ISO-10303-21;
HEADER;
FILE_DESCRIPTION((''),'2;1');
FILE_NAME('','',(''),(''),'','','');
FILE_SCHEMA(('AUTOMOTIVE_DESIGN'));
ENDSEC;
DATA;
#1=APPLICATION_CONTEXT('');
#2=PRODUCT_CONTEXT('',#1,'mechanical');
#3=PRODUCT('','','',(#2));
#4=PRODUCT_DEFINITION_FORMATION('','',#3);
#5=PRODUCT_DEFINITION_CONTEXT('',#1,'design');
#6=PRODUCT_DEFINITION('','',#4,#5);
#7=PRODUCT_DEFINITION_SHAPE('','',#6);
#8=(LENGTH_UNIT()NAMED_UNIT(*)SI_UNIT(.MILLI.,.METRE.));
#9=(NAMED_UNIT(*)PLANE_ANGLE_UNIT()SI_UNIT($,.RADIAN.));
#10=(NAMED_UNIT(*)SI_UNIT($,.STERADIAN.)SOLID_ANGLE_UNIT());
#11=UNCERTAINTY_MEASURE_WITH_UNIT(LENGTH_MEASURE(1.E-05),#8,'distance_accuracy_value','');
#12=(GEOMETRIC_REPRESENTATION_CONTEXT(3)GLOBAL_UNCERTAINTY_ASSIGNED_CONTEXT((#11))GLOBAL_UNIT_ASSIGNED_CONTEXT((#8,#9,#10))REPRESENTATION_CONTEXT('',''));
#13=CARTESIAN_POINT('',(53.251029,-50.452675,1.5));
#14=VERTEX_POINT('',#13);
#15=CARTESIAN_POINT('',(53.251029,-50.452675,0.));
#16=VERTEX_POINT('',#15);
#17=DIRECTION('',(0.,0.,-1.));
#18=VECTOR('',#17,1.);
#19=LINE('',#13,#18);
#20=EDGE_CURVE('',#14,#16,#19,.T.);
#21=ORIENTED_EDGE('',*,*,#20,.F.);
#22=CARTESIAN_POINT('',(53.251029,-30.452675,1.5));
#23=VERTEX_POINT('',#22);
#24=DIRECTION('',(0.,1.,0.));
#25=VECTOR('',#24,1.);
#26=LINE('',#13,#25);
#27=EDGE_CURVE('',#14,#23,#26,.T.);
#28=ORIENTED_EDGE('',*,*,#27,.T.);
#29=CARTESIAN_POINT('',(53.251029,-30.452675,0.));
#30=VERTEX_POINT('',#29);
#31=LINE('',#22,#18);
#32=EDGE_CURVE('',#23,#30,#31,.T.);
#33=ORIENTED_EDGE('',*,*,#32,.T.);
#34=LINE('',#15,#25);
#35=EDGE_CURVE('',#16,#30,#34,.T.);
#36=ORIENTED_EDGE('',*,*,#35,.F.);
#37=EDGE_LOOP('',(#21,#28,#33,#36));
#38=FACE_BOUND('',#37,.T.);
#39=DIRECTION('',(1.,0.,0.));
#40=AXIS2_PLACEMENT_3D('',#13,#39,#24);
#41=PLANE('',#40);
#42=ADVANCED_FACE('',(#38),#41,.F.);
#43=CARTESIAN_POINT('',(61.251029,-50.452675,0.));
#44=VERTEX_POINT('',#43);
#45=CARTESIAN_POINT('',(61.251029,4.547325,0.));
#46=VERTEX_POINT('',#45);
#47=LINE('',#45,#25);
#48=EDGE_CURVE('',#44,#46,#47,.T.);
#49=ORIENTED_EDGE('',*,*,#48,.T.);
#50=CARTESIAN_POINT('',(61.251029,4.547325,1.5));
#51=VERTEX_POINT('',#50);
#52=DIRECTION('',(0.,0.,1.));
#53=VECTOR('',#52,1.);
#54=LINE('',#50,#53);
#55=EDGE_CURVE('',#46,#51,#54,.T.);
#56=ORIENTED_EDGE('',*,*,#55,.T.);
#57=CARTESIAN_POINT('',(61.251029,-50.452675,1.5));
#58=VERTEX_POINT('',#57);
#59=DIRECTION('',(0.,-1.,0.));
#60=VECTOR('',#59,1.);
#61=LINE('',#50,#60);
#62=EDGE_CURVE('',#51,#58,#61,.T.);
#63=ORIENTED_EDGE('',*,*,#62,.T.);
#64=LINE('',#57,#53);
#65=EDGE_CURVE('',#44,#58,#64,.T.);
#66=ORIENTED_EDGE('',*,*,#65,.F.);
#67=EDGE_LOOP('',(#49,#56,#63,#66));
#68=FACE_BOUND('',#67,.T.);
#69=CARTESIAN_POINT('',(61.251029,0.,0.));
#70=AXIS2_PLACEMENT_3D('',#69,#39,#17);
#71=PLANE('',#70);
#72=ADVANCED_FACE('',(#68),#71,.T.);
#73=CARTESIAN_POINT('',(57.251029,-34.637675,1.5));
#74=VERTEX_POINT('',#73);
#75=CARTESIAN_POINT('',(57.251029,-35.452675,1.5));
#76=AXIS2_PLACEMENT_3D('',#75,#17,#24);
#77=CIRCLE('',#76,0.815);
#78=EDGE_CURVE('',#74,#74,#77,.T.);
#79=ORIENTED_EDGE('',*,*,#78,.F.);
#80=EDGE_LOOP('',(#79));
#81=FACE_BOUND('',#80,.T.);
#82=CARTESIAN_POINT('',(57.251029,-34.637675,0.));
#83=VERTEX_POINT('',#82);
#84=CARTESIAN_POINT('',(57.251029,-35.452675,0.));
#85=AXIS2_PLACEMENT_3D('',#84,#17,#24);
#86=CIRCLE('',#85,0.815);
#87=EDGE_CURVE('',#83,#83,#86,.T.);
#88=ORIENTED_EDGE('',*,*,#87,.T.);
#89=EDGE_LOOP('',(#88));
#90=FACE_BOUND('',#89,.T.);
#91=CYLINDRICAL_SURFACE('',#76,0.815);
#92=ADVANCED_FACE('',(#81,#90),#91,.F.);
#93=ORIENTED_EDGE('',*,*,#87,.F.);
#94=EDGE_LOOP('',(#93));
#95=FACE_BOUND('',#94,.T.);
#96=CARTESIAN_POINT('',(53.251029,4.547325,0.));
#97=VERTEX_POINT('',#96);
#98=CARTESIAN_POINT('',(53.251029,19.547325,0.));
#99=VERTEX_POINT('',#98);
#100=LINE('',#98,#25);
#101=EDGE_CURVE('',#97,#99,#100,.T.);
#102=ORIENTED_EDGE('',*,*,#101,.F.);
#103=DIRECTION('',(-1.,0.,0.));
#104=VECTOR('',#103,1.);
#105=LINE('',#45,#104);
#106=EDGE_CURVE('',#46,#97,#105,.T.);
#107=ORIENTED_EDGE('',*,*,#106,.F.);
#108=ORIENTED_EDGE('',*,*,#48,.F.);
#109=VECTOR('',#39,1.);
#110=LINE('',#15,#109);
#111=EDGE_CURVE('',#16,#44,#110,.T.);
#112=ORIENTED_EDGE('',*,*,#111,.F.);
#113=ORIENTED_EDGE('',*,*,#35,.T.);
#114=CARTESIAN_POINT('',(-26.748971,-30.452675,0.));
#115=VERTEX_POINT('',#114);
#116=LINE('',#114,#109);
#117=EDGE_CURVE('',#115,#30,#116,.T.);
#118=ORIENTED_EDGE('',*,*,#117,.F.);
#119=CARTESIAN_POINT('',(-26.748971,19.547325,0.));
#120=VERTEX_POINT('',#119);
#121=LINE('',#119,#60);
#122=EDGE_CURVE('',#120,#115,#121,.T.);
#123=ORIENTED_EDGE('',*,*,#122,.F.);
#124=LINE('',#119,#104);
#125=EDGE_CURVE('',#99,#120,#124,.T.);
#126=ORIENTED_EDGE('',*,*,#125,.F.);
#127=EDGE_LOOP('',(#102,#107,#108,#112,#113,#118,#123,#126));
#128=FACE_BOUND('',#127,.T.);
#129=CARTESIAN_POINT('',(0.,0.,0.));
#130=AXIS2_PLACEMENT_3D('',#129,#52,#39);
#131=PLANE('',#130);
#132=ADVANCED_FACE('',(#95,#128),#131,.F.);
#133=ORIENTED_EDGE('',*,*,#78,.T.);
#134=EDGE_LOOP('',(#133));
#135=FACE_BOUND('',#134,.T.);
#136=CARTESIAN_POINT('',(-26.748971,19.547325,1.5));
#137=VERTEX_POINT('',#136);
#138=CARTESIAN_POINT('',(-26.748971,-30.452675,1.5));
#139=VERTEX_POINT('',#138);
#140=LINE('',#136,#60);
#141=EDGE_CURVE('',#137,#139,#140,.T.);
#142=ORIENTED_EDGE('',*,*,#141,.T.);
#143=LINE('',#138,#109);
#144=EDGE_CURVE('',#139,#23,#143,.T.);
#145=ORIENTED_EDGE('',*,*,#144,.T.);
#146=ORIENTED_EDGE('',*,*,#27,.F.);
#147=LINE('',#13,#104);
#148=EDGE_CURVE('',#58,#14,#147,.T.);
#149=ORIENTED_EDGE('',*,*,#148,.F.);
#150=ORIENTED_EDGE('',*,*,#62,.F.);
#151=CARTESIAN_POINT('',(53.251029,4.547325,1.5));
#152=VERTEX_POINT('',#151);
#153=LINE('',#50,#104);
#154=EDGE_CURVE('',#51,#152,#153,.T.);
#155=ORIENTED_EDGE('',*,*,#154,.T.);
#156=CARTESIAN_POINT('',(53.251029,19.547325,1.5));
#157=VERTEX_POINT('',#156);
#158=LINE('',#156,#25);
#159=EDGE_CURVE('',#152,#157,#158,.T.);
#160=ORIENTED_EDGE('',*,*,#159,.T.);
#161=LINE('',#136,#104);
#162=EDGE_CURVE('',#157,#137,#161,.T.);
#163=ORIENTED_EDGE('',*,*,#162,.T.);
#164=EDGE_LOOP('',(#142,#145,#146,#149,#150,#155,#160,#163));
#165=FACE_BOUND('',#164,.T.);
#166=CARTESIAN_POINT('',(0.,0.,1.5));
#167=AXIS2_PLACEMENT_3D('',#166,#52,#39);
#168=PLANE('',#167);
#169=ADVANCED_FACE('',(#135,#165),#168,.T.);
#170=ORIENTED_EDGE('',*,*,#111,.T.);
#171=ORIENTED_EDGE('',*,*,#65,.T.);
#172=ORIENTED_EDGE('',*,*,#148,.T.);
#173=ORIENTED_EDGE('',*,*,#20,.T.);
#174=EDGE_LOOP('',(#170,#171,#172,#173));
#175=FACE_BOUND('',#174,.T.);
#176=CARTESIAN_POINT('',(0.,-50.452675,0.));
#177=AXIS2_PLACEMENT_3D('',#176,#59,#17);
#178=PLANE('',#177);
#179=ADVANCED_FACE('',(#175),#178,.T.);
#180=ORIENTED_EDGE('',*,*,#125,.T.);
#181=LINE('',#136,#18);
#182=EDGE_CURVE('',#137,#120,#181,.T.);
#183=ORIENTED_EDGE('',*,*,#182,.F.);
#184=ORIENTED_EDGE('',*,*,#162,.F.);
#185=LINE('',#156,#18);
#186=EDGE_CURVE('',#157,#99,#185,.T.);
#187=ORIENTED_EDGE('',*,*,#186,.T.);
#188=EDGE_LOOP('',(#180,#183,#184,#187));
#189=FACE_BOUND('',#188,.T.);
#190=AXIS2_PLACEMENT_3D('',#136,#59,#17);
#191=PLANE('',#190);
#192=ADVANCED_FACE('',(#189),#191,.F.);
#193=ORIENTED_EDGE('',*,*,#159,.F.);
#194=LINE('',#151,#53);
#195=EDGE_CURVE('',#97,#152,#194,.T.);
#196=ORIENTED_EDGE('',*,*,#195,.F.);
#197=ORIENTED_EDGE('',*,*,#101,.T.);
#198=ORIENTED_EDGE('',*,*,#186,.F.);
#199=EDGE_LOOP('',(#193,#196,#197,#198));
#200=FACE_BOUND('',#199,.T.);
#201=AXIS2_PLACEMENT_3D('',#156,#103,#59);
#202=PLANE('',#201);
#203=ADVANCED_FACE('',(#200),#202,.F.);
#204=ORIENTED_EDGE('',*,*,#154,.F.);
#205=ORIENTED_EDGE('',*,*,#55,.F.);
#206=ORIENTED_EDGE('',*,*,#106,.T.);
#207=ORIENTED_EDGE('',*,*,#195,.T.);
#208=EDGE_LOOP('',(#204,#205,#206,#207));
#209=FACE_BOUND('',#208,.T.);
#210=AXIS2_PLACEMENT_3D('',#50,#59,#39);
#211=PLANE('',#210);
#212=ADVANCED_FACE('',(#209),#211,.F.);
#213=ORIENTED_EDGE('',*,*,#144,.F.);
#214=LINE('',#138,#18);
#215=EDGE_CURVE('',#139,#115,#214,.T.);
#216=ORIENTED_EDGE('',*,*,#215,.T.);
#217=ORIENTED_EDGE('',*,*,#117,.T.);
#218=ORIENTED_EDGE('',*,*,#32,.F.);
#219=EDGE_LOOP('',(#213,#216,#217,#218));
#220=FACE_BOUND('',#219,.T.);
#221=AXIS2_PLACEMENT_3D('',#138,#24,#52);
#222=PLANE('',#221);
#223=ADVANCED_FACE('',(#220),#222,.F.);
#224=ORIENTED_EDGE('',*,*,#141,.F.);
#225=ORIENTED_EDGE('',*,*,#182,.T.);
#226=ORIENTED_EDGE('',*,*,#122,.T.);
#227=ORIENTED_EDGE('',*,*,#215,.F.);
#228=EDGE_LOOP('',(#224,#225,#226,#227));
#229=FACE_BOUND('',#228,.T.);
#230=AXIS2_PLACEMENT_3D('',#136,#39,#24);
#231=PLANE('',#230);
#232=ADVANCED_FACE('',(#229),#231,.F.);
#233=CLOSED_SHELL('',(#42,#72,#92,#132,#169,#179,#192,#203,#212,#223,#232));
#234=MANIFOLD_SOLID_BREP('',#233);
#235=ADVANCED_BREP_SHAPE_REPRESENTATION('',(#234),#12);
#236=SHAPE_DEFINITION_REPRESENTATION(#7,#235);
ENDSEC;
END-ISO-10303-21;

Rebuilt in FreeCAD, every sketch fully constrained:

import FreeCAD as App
import Part
import Sketcher

V = App.Vector

doc = App.newDocument("Part")
body = doc.addObject("PartDesign::Body", "Body")

# Sketch on XY plane
sketch1 = body.newObject("Sketcher::SketchObject", "Sketch")
sketch1.AttachmentSupport = (doc.getObject("XY_Plane"), [""])
sketch1.MapMode = "FlatFace"
sketch1.addGeometry([
    Part.LineSegment(V(-27, 20, 0), V(-27, -30, 0)),
    Part.LineSegment(V(-27, -30, 0), V(53, -30, 0)),
    Part.LineSegment(V(53, -30, 0), V(53, 20, 0)),
    Part.LineSegment(V(53, 20, 0), V(-27, 20, 0)),
], False)
sketch1.addConstraint([
    Sketcher.Constraint("Coincident", 0, 2, 1, 1),
    Sketcher.Constraint("Coincident", 1, 2, 2, 1),
    Sketcher.Constraint("Coincident", 2, 2, 3, 1),
    Sketcher.Constraint("Coincident", 3, 2, 0, 1),
    Sketcher.Constraint("Vertical", 0),
    Sketcher.Constraint("Horizontal", 1),
    Sketcher.Constraint("Vertical", 2),
    Sketcher.Constraint("Horizontal", 3),
    Sketcher.Constraint("DistanceX", 1, 1, 1, 2, 80.0),
    Sketcher.Constraint("DistanceY", 0, 2, 0, 1, 50.0),
    Sketcher.Constraint("DistanceX", 0, 2, -1, 1, 26.748971),
    Sketcher.Constraint("DistanceY", 0, 2, -1, 1, 30.452675),
])
pad1 = body.newObject("PartDesign::Pad", "Pad")
pad1.Profile = sketch1
pad1.Length = 1.5

# Sketch on YZ plane
sketch2 = body.newObject("Sketcher::SketchObject", "Sketch001")
sketch2.AttachmentSupport = (doc.getObject("YZ_Plane"), [""])
sketch2.MapMode = "FlatFace"
sketch2.AttachmentOffset = App.Placement(V(0, 0, 53.251029), App.Rotation())
sketch2.addGeometry([
    Part.LineSegment(V(4.5, 1.5, 0), V(-15.5, 1.5, 0)),
    Part.LineSegment(V(-15.5, 1.5, 0), V(-15.5, 0, 0)),
    Part.LineSegment(V(-15.5, 0, 0), V(4.5, 0, 0)),
    Part.LineSegment(V(4.5, 0, 0), V(4.5, 1.5, 0)),
], False)
sketch2.addConstraint([
    Sketcher.Constraint("Coincident", 0, 2, 1, 1),
    Sketcher.Constraint("Coincident", 1, 2, 2, 1),
    Sketcher.Constraint("Coincident", 2, 2, 3, 1),
    Sketcher.Constraint("Coincident", 3, 2, 0, 1),
    Sketcher.Constraint("Horizontal", 0),
    Sketcher.Constraint("Vertical", 1),
    Sketcher.Constraint("Horizontal", 2),
    Sketcher.Constraint("Vertical", 3),
    Sketcher.Constraint("PointOnObject", 1, 2, -1),
    Sketcher.Constraint("DistanceX", 0, 2, 0, 1, 20.0),
    Sketcher.Constraint("DistanceY", 1, 2, 1, 1, 1.5),
    Sketcher.Constraint("DistanceX", 0, 2, -1, 1, 15.452675),
])
pad2 = body.newObject("PartDesign::Pad", "Pad001")
pad2.Profile = sketch2
pad2.Length = 8

# Sketch on XZ plane
sketch3 = body.newObject("Sketcher::SketchObject", "Sketch002")
sketch3.AttachmentSupport = (doc.getObject("XZ_Plane"), [""])
sketch3.MapMode = "FlatFace"
sketch3.AttachmentOffset = App.Placement(V(0, 0, 15.452675), App.Rotation())
sketch3.addGeometry([
    Part.LineSegment(V(53.3, 1.5, 0), V(53.3, 0, 0)),
    Part.LineSegment(V(53.3, 0, 0), V(61.3, 0, 0)),
    Part.LineSegment(V(61.3, 0, 0), V(61.3, 1.5, 0)),
    Part.LineSegment(V(61.3, 1.5, 0), V(53.3, 1.5, 0)),
], False)
sketch3.addConstraint([
    Sketcher.Constraint("Coincident", 0, 2, 1, 1),
    Sketcher.Constraint("Coincident", 1, 2, 2, 1),
    Sketcher.Constraint("Coincident", 2, 2, 3, 1),
    Sketcher.Constraint("Coincident", 3, 2, 0, 1),
    Sketcher.Constraint("Vertical", 0),
    Sketcher.Constraint("Horizontal", 1),
    Sketcher.Constraint("Vertical", 2),
    Sketcher.Constraint("Horizontal", 3),
    Sketcher.Constraint("PointOnObject", 0, 2, -1),
    Sketcher.Constraint("DistanceX", 1, 1, 1, 2, 8.0),
    Sketcher.Constraint("DistanceY", 0, 2, 0, 1, 1.5),
    Sketcher.Constraint("DistanceX", -1, 1, 0, 2, 53.251029),
])
pad3 = body.newObject("PartDesign::Pad", "Pad002")
pad3.Profile = sketch3
pad3.Length = 35

# Sketch on XY plane
sketch4 = body.newObject("Sketcher::SketchObject", "Sketch003")
sketch4.AttachmentSupport = (doc.getObject("XY_Plane"), [""])
sketch4.MapMode = "FlatFace"
sketch4.addGeometry(Part.Circle(V(57.3, -35.5, 0), V(0, 0, 1), 0.8), False)
sketch4.addConstraint([
    Sketcher.Constraint("Diameter", 0, 1.63),
    Sketcher.Constraint("DistanceX", -1, 1, 0, 3, 57.251029),
    Sketcher.Constraint("DistanceY", 0, 3, -1, 1, 35.452675),
])
pocket1 = body.newObject("PartDesign::Pocket", "Pocket")
pocket1.Profile = sketch4
pocket1.Type = "ThroughAll"
pocket1.Reversed = True

doc.recompute()
